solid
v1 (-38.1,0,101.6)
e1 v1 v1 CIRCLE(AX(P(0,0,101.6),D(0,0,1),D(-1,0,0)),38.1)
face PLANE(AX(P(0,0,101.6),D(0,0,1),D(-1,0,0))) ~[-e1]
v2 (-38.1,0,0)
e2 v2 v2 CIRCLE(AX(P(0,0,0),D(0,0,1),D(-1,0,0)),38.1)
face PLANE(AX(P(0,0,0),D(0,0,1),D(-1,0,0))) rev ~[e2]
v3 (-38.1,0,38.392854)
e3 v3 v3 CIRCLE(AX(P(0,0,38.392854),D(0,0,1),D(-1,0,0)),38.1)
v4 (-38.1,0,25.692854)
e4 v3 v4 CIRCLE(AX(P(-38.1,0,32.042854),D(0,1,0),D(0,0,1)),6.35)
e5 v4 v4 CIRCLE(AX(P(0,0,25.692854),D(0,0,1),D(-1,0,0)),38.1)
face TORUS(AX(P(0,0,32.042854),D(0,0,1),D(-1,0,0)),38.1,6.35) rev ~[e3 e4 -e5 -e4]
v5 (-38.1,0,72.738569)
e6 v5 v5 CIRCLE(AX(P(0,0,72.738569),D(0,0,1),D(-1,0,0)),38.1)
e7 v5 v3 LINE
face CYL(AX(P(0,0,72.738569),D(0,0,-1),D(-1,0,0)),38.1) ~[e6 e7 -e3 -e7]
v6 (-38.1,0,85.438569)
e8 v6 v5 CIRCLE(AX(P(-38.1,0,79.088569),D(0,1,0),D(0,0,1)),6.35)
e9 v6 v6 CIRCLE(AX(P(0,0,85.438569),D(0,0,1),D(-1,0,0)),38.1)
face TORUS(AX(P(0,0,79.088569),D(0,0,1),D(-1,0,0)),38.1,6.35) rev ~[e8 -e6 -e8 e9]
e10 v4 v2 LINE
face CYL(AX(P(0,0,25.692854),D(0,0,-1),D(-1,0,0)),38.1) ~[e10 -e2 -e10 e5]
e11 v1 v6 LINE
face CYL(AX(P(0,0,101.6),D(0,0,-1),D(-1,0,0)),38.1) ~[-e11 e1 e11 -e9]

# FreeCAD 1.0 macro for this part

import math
import FreeCAD as App
import Part
import Sketcher
Q = App.Units.Quantity

doc = App.newDocument("Part")
body = doc.addObject("PartDesign::Body", "Body")

# Sketch on XZ plane
sketch1 = body.newObject("Sketcher::SketchObject", "Sketch")
sketch1.AttachmentSupport = (doc.getObject("XZ_Plane"), [""])
sketch1.MapMode = "FlatFace"
sketch1.addGeometry([
    Part.LineSegment(App.Vector(-38, 0, 0), App.Vector(0, 0, 0)),  # 0
    Part.LineSegment(App.Vector(0, 0, 0), App.Vector(0, 102, 0)),  # 1
    Part.LineSegment(App.Vector(0, 102, 0), App.Vector(-38, 102, 0)),  # 2
    Part.LineSegment(App.Vector(-38, 102, 0), App.Vector(-38, 85, 0)),  # 3
    Part.ArcOfCircle(Part.Circle(App.Vector(-38, 79, 0), App.Vector(0, 0, 1), 6), math.radians(-90), math.radians(90)),  # 4
    Part.LineSegment(App.Vector(-38, 73, 0), App.Vector(-38, 38, 0)),  # 5
    Part.ArcOfCircle(Part.Circle(App.Vector(-38, 32, 0), App.Vector(0, 0, 1), 6), math.radians(-90), math.radians(90)),  # 6
    Part.LineSegment(App.Vector(-38, 26, 0), App.Vector(-38, 0, 0)),  # 7
], False)
sketch1.addConstraint([
    Sketcher.Constraint("Coincident", 0, 2, 1, 1),
    Sketcher.Constraint("Coincident", 1, 2, 2, 1),
    Sketcher.Constraint("Coincident", 2, 2, 3, 1),
    Sketcher.Constraint("Coincident", 3, 2, 4, 2),
    Sketcher.Constraint("Coincident", 4, 1, 5, 1),
    Sketcher.Constraint("Coincident", 5, 2, 6, 2),
    Sketcher.Constraint("Coincident", 6, 1, 7, 1),
    Sketcher.Constraint("Coincident", 7, 2, 0, 1),
    Sketcher.Constraint("Horizontal", 0),
    Sketcher.Constraint("Vertical", 1),
    Sketcher.Constraint("Horizontal", 2),
    Sketcher.Constraint("Vertical", 3),
    Sketcher.Constraint("Vertical", 5),
    Sketcher.Constraint("Vertical", 7),
    Sketcher.Constraint("Coincident", 0, 2, -1, 1),
    Sketcher.Constraint("Equal", 4, 6),
    Sketcher.Constraint("Vertical", 4, 3, 6, 3),
    Sketcher.Constraint("Vertical", 6, 3, 2, 2),
    Sketcher.Constraint("Vertical", 3, 2, 4, 1),
    Sketcher.Constraint("Vertical", 5, 2, 6, 1),
    Sketcher.Constraint("DistanceY", 1, 1, 1, 2, Q("4 in")),
    Sketcher.Constraint("Radius", 4, Q("0.25 in")),
    Sketcher.Constraint("DistanceX", 0, 1, 0, 2, Q("1.5 in")),
    Sketcher.Constraint("DistanceY", 3, 2, 3, 1, 16.161431),
    Sketcher.Constraint("DistanceY", 5, 2, 5, 1, 34.345715),
])
revolution = body.newObject("PartDesign::Revolution", "Revolution")
revolution.Profile = sketch1
revolution.ReferenceAxis = (sketch1, ["V_Axis"])
revolution.Angle = 360

doc.recompute()
